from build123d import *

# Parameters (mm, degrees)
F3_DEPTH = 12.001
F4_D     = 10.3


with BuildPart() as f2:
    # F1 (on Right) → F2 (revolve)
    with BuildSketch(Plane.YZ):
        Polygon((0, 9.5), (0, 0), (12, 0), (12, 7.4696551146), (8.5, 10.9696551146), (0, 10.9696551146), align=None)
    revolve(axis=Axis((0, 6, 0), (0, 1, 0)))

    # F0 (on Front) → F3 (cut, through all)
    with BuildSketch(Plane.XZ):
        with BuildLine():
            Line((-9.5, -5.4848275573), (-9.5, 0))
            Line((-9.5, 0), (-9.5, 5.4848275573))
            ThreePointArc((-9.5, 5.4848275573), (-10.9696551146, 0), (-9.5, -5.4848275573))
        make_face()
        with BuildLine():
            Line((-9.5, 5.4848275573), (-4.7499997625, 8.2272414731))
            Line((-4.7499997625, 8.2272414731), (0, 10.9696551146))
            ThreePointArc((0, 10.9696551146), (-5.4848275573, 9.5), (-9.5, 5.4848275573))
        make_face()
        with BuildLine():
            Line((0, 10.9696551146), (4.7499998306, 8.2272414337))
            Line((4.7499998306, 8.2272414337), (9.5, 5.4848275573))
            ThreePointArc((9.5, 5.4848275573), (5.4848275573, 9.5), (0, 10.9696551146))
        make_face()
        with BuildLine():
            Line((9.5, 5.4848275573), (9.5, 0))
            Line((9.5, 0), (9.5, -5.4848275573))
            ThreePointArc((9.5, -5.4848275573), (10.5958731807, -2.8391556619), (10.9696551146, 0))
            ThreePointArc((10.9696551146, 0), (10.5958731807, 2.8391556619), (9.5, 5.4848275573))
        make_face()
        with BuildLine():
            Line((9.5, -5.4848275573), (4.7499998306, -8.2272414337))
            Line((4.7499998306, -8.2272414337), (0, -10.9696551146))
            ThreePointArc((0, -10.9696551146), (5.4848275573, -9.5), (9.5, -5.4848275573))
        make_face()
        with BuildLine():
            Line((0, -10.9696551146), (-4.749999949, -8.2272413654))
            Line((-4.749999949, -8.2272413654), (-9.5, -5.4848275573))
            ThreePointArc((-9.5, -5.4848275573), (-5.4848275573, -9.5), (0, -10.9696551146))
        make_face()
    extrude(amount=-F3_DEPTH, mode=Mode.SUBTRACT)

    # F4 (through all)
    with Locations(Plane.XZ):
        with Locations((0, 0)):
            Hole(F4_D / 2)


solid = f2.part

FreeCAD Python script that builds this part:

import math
import FreeCAD as App
import Part
import Sketcher
from FreeCAD import Vector
Q = App.Units.Quantity


def add_polygon(sketch, points):
    """Adds a closed chain of lines whose ends are joined by coincident constraints."""
    first, n = sketch.GeometryCount, len(points)
    for a, b in zip(points, points[1:] + points[:1]):
        sketch.addGeometry(Part.LineSegment(App.Vector(*a, 0), App.Vector(*b, 0)), False)
    for i in range(n):
        sketch.addConstraint(Sketcher.Constraint("Coincident", first + i, 2, first + (i + 1) % n, 1))

doc = App.newDocument("Part")
params = doc.addObject("Spreadsheet::Sheet", "Params")
for row, (alias, value) in enumerate([
    ("sketch1_width", "12 mm"),
    ("sketch1_width2", "8.5 mm"),
    ("revolution_angle", "360 deg"),
    ("sketch3_diameter", "10.3 mm"),
    ("hole_diameter", "10.3 mm"),
], start=1):
    params.set(f"A{row}", alias)
    params.set(f"B{row}", "=" + value)
    params.setAlias(f"B{row}", alias)

body = doc.addObject("PartDesign::Body", "Body")

sketch1 = body.newObject("Sketcher::SketchObject", "Sketch")
sketch1.AttachmentSupport = (doc.getObject("YZ_Plane"), [""])
sketch1.MapMode = "FlatFace"
add_polygon(sketch1, [(0, 0), (12, 0), (12, 7.5), (8.5, 11), (0, 11)])
sketch1.addConstraint([
    Sketcher.Constraint("Horizontal", 0),
    Sketcher.Constraint("Vertical", 1),
    Sketcher.Constraint("Horizontal", 3),
    Sketcher.Constraint("Vertical", 4),
    Sketcher.Constraint("Coincident", 4, 2, -1, 1),
    Sketcher.Constraint("DistanceX", 0, 1, 0, 2, 12.0),
    Sketcher.Constraint("Angle", 2, Q("135 deg")),
    Sketcher.Constraint("DistanceX", 3, 2, 3, 1, 8.5),
    Sketcher.Constraint("DistanceY", 1, 1, 1, 2, 7.469655),
])
sketch1.setExpression("Constraints[10]", "Params.sketch1_width")
sketch1.setExpression("Constraints[12]", "Params.sketch1_width2")
revolution = body.newObject("PartDesign::Revolution", "Revolution")
revolution.Profile = sketch1
revolution.ReferenceAxis = (sketch1, ["H_Axis"])
revolution.setExpression("Angle", "Params.revolution_angle")

sketch2 = body.newObject("Sketcher::SketchObject", "Sketch001")
sketch2.AttachmentSupport = (doc.getObject("XZ_Plane"), [""])
sketch2.MapMode = "FlatFace"
sketch2.addGeometry([
    Part.LineSegment(Vector(-10, -5, 0), Vector(-10, 5, 0)),
    Part.ArcOfCircle(Part.Circle(Vector(0, 0, 0), Vector(0, 0, 1), 11), math.radians(150), math.radians(210)),
    Part.LineSegment(Vector(-10, 5, 0), Vector(-5, 8, 0)),
    Part.LineSegment(Vector(-5, 8, 0), Vector(0, 11, 0)),
    Part.ArcOfCircle(Part.Circle(Vector(0, 0, 0), Vector(0, 0, 1), 11), math.radians(90), math.radians(150)),
    Part.LineSegment(Vector(0, 11, 0), Vector(5, 8, 0)),
    Part.LineSegment(Vector(5, 8, 0), Vector(10, 5, 0)),
    Part.ArcOfCircle(Part.Circle(Vector(0, 0, 0), Vector(0, 0, 1), 11), math.radians(30), math.radians(90)),
    Part.LineSegment(Vector(10, 5, 0), Vector(10, -5, 0)),
    Part.ArcOfCircle(Part.Circle(Vector(0, 0, 0), Vector(0, 0, 1), 11), math.radians(-30), math.radians(0)),
    Part.ArcOfCircle(Part.Circle(Vector(0, 0, 0), Vector(0, 0, 1), 11), math.radians(0), math.radians(30)),
    Part.LineSegment(Vector(10, -5, 0), Vector(5, -8, 0)),
    Part.LineSegment(Vector(5, -8, 0), Vector(0, -11, 0)),
    Part.ArcOfCircle(Part.Circle(Vector(0, 0, 0), Vector(0, 0, 1), 11), math.radians(-90), math.radians(-30)),
    Part.LineSegment(Vector(0, -11, 0), Vector(-5, -8, 0)),
    Part.LineSegment(Vector(-5, -8, 0), Vector(-10, -5, 0)),
    Part.ArcOfCircle(Part.Circle(Vector(0, 0, 0), Vector(0, 0, 1), 11), math.radians(-150), math.radians(-90)),
], False)
sketch2.addConstraint([
    Sketcher.Constraint("Coincident", 0, 1, 1, 2),
    Sketcher.Constraint("Coincident", 1, 1, 0, 2),
    Sketcher.Constraint("Coincident", 2, 2, 3, 1),
    Sketcher.Constraint("Coincident", 3, 2, 4, 1),
    Sketcher.Constraint("Coincident", 4, 2, 2, 1),
    Sketcher.Constraint("Coincident", 5, 2, 6, 1),
    Sketcher.Constraint("Coincident", 6, 2, 7, 1),
    Sketcher.Constraint("Coincident", 7, 2, 5, 1),
    Sketcher.Constraint("Coincident", 8, 2, 9, 1),
    Sketcher.Constraint("Tangent", 9, 2, 10, 1),
    Sketcher.Constraint("Coincident", 10, 2, 8, 1),
    Sketcher.Constraint("Coincident", 11, 2, 12, 1),
    Sketcher.Constraint("Coincident", 12, 2, 13, 1),
    Sketcher.Constraint("Coincident", 13, 2, 11, 1),
    Sketcher.Constraint("Coincident", 14, 2, 15, 1),
    Sketcher.Constraint("Coincident", 15, 2, 16, 1),
    Sketcher.Constraint("Coincident", 16, 2, 14, 1),
    Sketcher.Constraint("Vertical", 0),
    Sketcher.Constraint("Vertical", 8),
    Sketcher.Constraint("Coincident", 1, 3, -1, 1),
    Sketcher.Constraint("Coincident", 4, 3, -1, 1),
    Sketcher.Constraint("Coincident", 7, 3, -1, 1),
    Sketcher.Constraint("Coincident", 9, 3, -1, 1),
    Sketcher.Constraint("Coincident", 13, 3, -1, 1),
    Sketcher.Constraint("Coincident", 16, 3, -1, 1),
    Sketcher.Constraint("Coincident", 4, 2, 1, 1),
    Sketcher.Constraint("Coincident", 7, 2, 3, 2),
    Sketcher.Constraint("Coincident", 10, 2, 6, 2),
    Sketcher.Constraint("Coincident", 13, 2, 8, 2),
    Sketcher.Constraint("Coincident", 15, 2, 0, 1),
    Sketcher.Constraint("Coincident", 16, 2, 12, 2),
    Sketcher.Constraint("Symmetric", 2, 2, 11, 2, -1, 1),
    Sketcher.Constraint("Symmetric", 5, 2, 14, 2, -1, 1),
    Sketcher.Constraint("Symmetric", 2, 2, 5, 2, -2),
    Sketcher.Constraint("PointOnObject", 3, 2, -2),
    Sketcher.Constraint("PointOnObject", 9, 2, -1),
    Sketcher.Constraint("PointOnObject", 12, 2, -2),
    Sketcher.Constraint("Parallel", 2, 3),
    Sketcher.Constraint("Parallel", 5, 6),
    Sketcher.Constraint("Equal", 2, 3),
    Sketcher.Constraint("Angle", 2, Q("30 deg")),
    Sketcher.Constraint("DistanceX", 0, 1, -1, 1, 9.5),
])
pocket1 = body.newObject("PartDesign::Pocket", "Pocket")
pocket1.Profile = sketch2
pocket1.Type = "ThroughAll"

sketch3 = body.newObject("Sketcher::SketchObject", "Sketch002")
sketch3.AttachmentSupport = (doc.getObject("XZ_Plane"), [""])
sketch3.MapMode = "FlatFace"
sketch3.addGeometry(Part.Circle(Vector(0, 0, 0), Vector(0, 0, 1), 5), False)
sketch3.addConstraint([
    Sketcher.Constraint("Coincident", 0, 3, -1, 1),
    Sketcher.Constraint("Diameter", 0, 10.3),
])
sketch3.setExpression("Constraints[1]", "Params.sketch3_diameter")
doc.recompute()
hole = body.newObject("PartDesign::Hole", "Hole")
hole.Profile = sketch3
hole.ThreadType = "None"
hole.setExpression("Diameter", "Params.hole_diameter")
hole.DepthType = "ThroughAll"

doc.recompute()
